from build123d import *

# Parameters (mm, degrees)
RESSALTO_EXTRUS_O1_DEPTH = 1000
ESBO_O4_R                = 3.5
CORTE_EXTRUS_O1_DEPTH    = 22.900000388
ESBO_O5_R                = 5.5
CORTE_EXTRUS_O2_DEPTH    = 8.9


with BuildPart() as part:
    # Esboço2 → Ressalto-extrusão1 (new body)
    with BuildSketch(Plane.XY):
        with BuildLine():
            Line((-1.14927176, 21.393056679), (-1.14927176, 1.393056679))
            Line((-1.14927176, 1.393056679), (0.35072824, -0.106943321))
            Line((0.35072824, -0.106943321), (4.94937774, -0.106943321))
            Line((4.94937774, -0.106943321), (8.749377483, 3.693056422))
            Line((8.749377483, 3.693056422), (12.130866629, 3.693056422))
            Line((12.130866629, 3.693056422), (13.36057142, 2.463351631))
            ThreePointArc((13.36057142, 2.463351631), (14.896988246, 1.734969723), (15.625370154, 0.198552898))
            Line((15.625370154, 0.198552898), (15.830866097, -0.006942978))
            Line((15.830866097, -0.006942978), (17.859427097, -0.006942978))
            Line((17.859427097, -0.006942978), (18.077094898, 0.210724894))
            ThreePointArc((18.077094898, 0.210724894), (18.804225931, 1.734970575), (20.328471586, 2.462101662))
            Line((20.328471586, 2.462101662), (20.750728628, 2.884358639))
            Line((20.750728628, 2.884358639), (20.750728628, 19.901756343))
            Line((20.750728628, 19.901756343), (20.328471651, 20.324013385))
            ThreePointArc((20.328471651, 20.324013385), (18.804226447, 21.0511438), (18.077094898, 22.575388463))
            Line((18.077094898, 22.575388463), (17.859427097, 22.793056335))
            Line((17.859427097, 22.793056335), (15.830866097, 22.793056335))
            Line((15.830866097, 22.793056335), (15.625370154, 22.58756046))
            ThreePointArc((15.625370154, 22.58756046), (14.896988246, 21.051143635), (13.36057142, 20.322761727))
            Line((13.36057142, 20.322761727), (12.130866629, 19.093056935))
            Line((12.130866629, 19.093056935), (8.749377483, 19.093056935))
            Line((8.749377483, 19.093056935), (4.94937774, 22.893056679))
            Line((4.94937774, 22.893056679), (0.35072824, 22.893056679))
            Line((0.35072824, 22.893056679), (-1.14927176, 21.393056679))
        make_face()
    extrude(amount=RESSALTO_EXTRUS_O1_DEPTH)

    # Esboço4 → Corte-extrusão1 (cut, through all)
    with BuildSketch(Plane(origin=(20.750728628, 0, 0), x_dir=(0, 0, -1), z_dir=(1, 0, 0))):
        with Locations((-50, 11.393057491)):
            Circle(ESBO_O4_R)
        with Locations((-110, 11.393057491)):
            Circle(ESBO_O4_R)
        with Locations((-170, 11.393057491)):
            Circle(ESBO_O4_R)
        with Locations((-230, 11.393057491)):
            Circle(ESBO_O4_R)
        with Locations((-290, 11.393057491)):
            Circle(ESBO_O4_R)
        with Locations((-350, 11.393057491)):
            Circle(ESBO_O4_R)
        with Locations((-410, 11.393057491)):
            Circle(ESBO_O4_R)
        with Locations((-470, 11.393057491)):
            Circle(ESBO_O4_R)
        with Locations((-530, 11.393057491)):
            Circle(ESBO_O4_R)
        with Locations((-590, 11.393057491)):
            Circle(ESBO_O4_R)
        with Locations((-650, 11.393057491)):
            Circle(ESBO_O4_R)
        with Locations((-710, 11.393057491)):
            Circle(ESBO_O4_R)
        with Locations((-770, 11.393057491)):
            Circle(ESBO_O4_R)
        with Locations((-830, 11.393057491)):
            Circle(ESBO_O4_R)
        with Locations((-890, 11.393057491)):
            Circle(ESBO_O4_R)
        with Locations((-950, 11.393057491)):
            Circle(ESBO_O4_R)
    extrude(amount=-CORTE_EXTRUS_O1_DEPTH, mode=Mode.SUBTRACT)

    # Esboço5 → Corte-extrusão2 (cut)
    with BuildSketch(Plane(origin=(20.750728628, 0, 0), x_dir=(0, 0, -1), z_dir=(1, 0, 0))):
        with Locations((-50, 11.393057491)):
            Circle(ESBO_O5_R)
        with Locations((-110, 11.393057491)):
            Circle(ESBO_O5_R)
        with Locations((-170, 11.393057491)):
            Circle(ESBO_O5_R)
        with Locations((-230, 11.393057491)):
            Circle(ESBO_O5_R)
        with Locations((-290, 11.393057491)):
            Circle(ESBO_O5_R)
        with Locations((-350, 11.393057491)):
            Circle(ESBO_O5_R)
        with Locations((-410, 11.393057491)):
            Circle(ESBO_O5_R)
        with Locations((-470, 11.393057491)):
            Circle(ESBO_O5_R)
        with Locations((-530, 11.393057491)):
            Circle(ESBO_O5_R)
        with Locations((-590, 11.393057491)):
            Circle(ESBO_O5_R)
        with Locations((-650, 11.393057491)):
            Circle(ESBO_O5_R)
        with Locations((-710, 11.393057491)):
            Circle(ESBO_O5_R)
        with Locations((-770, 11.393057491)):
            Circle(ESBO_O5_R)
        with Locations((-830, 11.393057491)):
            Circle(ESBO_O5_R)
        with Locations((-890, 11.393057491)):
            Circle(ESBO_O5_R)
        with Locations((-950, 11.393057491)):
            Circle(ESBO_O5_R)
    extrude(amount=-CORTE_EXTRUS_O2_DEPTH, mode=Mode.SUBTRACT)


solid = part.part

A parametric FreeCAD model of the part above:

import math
import FreeCAD as App
import Part
import Sketcher

V = App.Vector

doc = App.newDocument("Part")
params = doc.addObject("Spreadsheet::Sheet", "Params")
for row, (alias, value) in enumerate([
    ("sketch1_height", "20 mm"),
    ("sketch1_radius", "2.53 mm"),
    ("pad1_length", "1000 mm"),
    ("sketch2_diameter", "7 mm"),
    ("sketch3_diameter", "11 mm"),
    ("pocket2_length", "8.9 mm"),
], start=1):
    params.set(f"A{row}", alias)
    params.set(f"B{row}", "=" + value)
    params.setAlias(f"B{row}", alias)

body = doc.addObject("PartDesign::Body", "Body")

# Sketch on XY plane
sketch1 = doc.addObject("Sketcher::SketchObject", "Sketch")
body.addObject(sketch1)
sketch1.AttachmentSupport = (doc.XY_Plane, [""])
sketch1.MapMode = "FlatFace"
sketch1.addGeometry(Part.LineSegment(V(-1.15, 21.39, 0), V(-1.15, 1.39, 0)), False)
sketch1.addGeometry(Part.LineSegment(V(-1.15, 1.39, 0), V(0.35, -0.11, 0)), False)
sketch1.addGeometry(Part.LineSegment(V(0.35, -0.11, 0), V(4.95, -0.11, 0)), False)
sketch1.addGeometry(Part.LineSegment(V(4.95, -0.11, 0), V(8.75, 3.69, 0)), False)
sketch1.addGeometry(Part.LineSegment(V(8.75, 3.69, 0), V(12.13, 3.69, 0)), False)
sketch1.addGeometry(Part.LineSegment(V(12.13, 3.69, 0), V(13.36, 2.46, 0)), False)
sketch1.addGeometry(Part.ArcOfCircle(Part.Circle(V(13.11, -0.05, 0), V(0, 0, 1), 2.53), math.radians(6), math.radians(84)), False)
sketch1.addGeometry(Part.LineSegment(V(15.63, 0.2, 0), V(15.83, -0.01, 0)), False)
sketch1.addGeometry(Part.LineSegment(V(15.83, -0.01, 0), V(17.86, -0.01, 0)), False)
sketch1.addGeometry(Part.LineSegment(V(17.86, -0.01, 0), V(18.08, 0.21, 0)), False)
sketch1.addGeometry(Part.ArcOfCircle(Part.Circle(V(20.59, -0.05, 0), V(0, 0, 1), 2.53), math.radians(96), math.radians(174)), False)
sketch1.addGeometry(Part.LineSegment(V(20.33, 2.46, 0), V(20.75, 2.88, 0)), False)
sketch1.addGeometry(Part.LineSegment(V(20.75, 2.88, 0), V(20.75, 19.9, 0)), False)
sketch1.addGeometry(Part.LineSegment(V(20.75, 19.9, 0), V(20.33, 20.32, 0)), False)
sketch1.addGeometry(Part.ArcOfCircle(Part.Circle(V(20.59, 22.84, 0), V(0, 0, 1), 2.53), math.radians(-174), math.radians(-96)), False)
sketch1.addGeometry(Part.LineSegment(V(18.08, 22.58, 0), V(17.86, 22.79, 0)), False)
sketch1.addGeometry(Part.LineSegment(V(17.86, 22.79, 0), V(15.83, 22.79, 0)), False)
sketch1.addGeometry(Part.LineSegment(V(15.83, 22.79, 0), V(15.63, 22.59, 0)), False)
sketch1.addGeometry(Part.ArcOfCircle(Part.Circle(V(13.11, 22.84, 0), V(0, 0, 1), 2.53), math.radians(-84), math.radians(-6)), False)
sketch1.addGeometry(Part.LineSegment(V(13.36, 20.32, 0), V(12.13, 19.09, 0)), False)
sketch1.addGeometry(Part.LineSegment(V(12.13, 19.09, 0), V(8.75, 19.09, 0)), False)
sketch1.addGeometry(Part.LineSegment(V(8.75, 19.09, 0), V(4.95, 22.89, 0)), False)
sketch1.addGeometry(Part.LineSegment(V(4.95, 22.89, 0), V(0.35, 22.89, 0)), False)
sketch1.addGeometry(Part.LineSegment(V(0.35, 22.89, 0), V(-1.15, 21.39, 0)), False)
sketch1.addConstraint(Sketcher.Constraint("Coincident", 0, 2, 1, 1))
sketch1.addConstraint(Sketcher.Constraint("Coincident", 1, 2, 2, 1))
sketch1.addConstraint(Sketcher.Constraint("Coincident", 2, 2, 3, 1))
sketch1.addConstraint(Sketcher.Constraint("Coincident", 3, 2, 4, 1))
sketch1.addConstraint(Sketcher.Constraint("Coincident", 4, 2, 5, 1))
sketch1.addConstraint(Sketcher.Constraint("Coincident", 5, 2, 6, 2))
sketch1.addConstraint(Sketcher.Constraint("Coincident", 6, 1, 7, 1))
sketch1.addConstraint(Sketcher.Constraint("Coincident", 7, 2, 8, 1))
sketch1.addConstraint(Sketcher.Constraint("Coincident", 8, 2, 9, 1))
sketch1.addConstraint(Sketcher.Constraint("Coincident", 9, 2, 10, 2))
sketch1.addConstraint(Sketcher.Constraint("Coincident", 10, 1, 11, 1))
sketch1.addConstraint(Sketcher.Constraint("Coincident", 11, 2, 12, 1))
sketch1.addConstraint(Sketcher.Constraint("Coincident", 12, 2, 13, 1))
sketch1.addConstraint(Sketcher.Constraint("Coincident", 13, 2, 14, 2))
sketch1.addConstraint(Sketcher.Constraint("Coincident", 14, 1, 15, 1))
sketch1.addConstraint(Sketcher.Constraint("Coincident", 15, 2, 16, 1))
sketch1.addConstraint(Sketcher.Constraint("Coincident", 16, 2, 17, 1))
sketch1.addConstraint(Sketcher.Constraint("Coincident", 17, 2, 18, 2))
sketch1.addConstraint(Sketcher.Constraint("Coincident", 18, 1, 19, 1))
sketch1.addConstraint(Sketcher.Constraint("Coincident", 19, 2, 20, 1))
sketch1.addConstraint(Sketcher.Constraint("Coincident", 20, 2, 21, 1))
sketch1.addConstraint(Sketcher.Constraint("Coincident", 21, 2, 22, 1))
sketch1.addConstraint(Sketcher.Constraint("Coincident", 22, 2, 23, 1))
sketch1.addConstraint(Sketcher.Constraint("Coincident", 23, 2, 0, 1))
sketch1.addConstraint(Sketcher.Constraint("Vertical", 0))
sketch1.addConstraint(Sketcher.Constraint("Horizontal", 2))
sketch1.addConstraint(Sketcher.Constraint("Horizontal", 4))
sketch1.addConstraint(Sketcher.Constraint("Horizontal", 8))
sketch1.addConstraint(Sketcher.Constraint("Vertical", 12))
sketch1.addConstraint(Sketcher.Constraint("Horizontal", 16))
sketch1.addConstraint(Sketcher.Constraint("Horizontal", 20))
sketch1.addConstraint(Sketcher.Constraint("Horizontal", 22))
sketch1.addConstraint(Sketcher.Constraint("Equal", 6, 10))
sketch1.addConstraint(Sketcher.Constraint("Equal", 10, 14))
sketch1.addConstraint(Sketcher.Constraint("Equal", 14, 18))
sketch1.addConstraint(Sketcher.Constraint("Perpendicular", 1, 3))
sketch1.addConstraint(Sketcher.Constraint("Perpendicular", 3, 5))
sketch1.addConstraint(Sketcher.Constraint("Parallel", 5, 7))
sketch1.addConstraint(Sketcher.Constraint("Perpendicular", 7, 9))
sketch1.addConstraint(Sketcher.Constraint("Parallel", 9, 11))
sketch1.addConstraint(Sketcher.Constraint("Perpendicular", 11, 13))
sketch1.addConstraint(Sketcher.Constraint("Parallel", 13, 15))
sketch1.addConstraint(Sketcher.Constraint("Perpendicular", 15, 17))
sketch1.addConstraint(Sketcher.Constraint("Parallel", 17, 19))
sketch1.addConstraint(Sketcher.Constraint("Perpendicular", 19, 21))
sketch1.addConstraint(Sketcher.Constraint("Perpendicular", 21, 23))
sketch1.addConstraint(Sketcher.Constraint("Horizontal", 6, 3, 10, 3))
sketch1.addConstraint(Sketcher.Constraint("Horizontal", 14, 3, 18, 3))
sketch1.addConstraint(Sketcher.Constraint("Vertical", 10, 3, 14, 3))
sketch1.addConstraint(Sketcher.Constraint("Vertical", 6, 3, 18, 3))
sketch1.addConstraint(Sketcher.Constraint("Vertical", 10, 1, 13, 2))
sketch1.addConstraint(Sketcher.Constraint("Vertical", 9, 2, 14, 1))
sketch1.addConstraint(Sketcher.Constraint("Vertical", 8, 2, 15, 2))
sketch1.addConstraint(Sketcher.Constraint("Vertical", 7, 2, 16, 2))
sketch1.addConstraint(Sketcher.Constraint("Vertical", 6, 1, 17, 2))
sketch1.addConstraint(Sketcher.Constraint("Vertical", 5, 2, 18, 1))
sketch1.addConstraint(Sketcher.Constraint("Vertical", 4, 2, 19, 2))
sketch1.addConstraint(Sketcher.Constraint("Vertical", 3, 2, 20, 2))
sketch1.addConstraint(Sketcher.Constraint("Vertical", 2, 2, 21, 2))
sketch1.addConstraint(Sketcher.Constraint("Vertical", 1, 2, 22, 2))
sketch1.addConstraint(Sketcher.Constraint("DistanceY", 0, 2, 0, 1, 20.0))
sketch1.addConstraint(Sketcher.Constraint("Radius", 6, 2.53))
sketch1.addConstraint(Sketcher.Constraint("DistanceX", 0, 2, 1, 2, 1.5))
sketch1.addConstraint(Sketcher.Constraint("DistanceX", 2, 2, 3, 2, 3.8))
sketch1.addConstraint(Sketcher.Constraint("DistanceX", 4, 2, 7, 2, 3.699999))
sketch1.addConstraint(Sketcher.Constraint("DistanceY", 7, 2, 4, 2, 3.699999))
sketch1.addConstraint(Sketcher.Constraint("DistanceX", 2, 1, 2, 2, 4.59865))
sketch1.addConstraint(Sketcher.Constraint("DistanceX", 4, 1, 4, 2, 3.381489))
sketch1.addConstraint(Sketcher.Constraint("DistanceX", 8, 1, 8, 2, 2.028561))
sketch1.addConstraint(Sketcher.Constraint("DistanceY", -1, 1, 10, 1, 2.462102))
sketch1.addConstraint(Sketcher.Constraint("DistanceX", 6, 3, 10, 3, 7.485198))
sketch1.addConstraint(Sketcher.Constraint("DistanceX", 5, 2, 6, 1, 2.264799))
sketch1.addConstraint(Sketcher.Constraint("DistanceX", 6, 1, 10, 1, 4.703101))
sketch1.addConstraint(Sketcher.Constraint("DistanceX", 8, 2, 11, 2, 2.891302))
sketch1.addConstraint(Sketcher.Constraint("DistanceY", 8, 2, 11, 2, 2.891302))
sketch1.addConstraint(Sketcher.Constraint("DistanceX", -1, 1, 6, 3, 13.108008))
sketch1.setExpression("Constraints[60]", "Params.sketch1_height")
sketch1.setExpression("Constraints[61]", "Params.sketch1_radius")
pad1 = doc.addObject("PartDesign::Pad", "Pad")
body.addObject(pad1)
pad1.Profile = sketch1
pad1.setExpression("Length", "Params.pad1_length")

# Sketch on YZ plane
sketch2 = doc.addObject("Sketcher::SketchObject", "Sketch001")
body.addObject(sketch2)
sketch2.AttachmentSupport = (doc.YZ_Plane, [""])
sketch2.MapMode = "FlatFace"
sketch2.AttachmentOffset = App.Placement(V(0, 0, 20.750729), App.Rotation())
sketch2.addGeometry(Part.Circle(V(11.4, 50, 0), V(0, 0, 1), 3.5), False)
sketch2.addGeometry(Part.Circle(V(11.4, 110, 0), V(0, 0, 1), 3.5), False)
sketch2.addGeometry(Part.Circle(V(11.4, 170, 0), V(0, 0, 1), 3.5), False)
sketch2.addGeometry(Part.Circle(V(11.4, 230, 0), V(0, 0, 1), 3.5), False)
sketch2.addGeometry(Part.Circle(V(11.4, 290, 0), V(0, 0, 1), 3.5), False)
sketch2.addGeometry(Part.Circle(V(11.4, 350, 0), V(0, 0, 1), 3.5), False)
sketch2.addGeometry(Part.Circle(V(11.4, 410, 0), V(0, 0, 1), 3.5), False)
sketch2.addGeometry(Part.Circle(V(11.4, 470, 0), V(0, 0, 1), 3.5), False)
sketch2.addGeometry(Part.Circle(V(11.4, 530, 0), V(0, 0, 1), 3.5), False)
sketch2.addGeometry(Part.Circle(V(11.4, 590, 0), V(0, 0, 1), 3.5), False)
sketch2.addGeometry(Part.Circle(V(11.4, 650, 0), V(0, 0, 1), 3.5), False)
sketch2.addGeometry(Part.Circle(V(11.4, 710, 0), V(0, 0, 1), 3.5), False)
sketch2.addGeometry(Part.Circle(V(11.4, 770, 0), V(0, 0, 1), 3.5), False)
sketch2.addGeometry(Part.Circle(V(11.4, 830, 0), V(0, 0, 1), 3.5), False)
sketch2.addGeometry(Part.Circle(V(11.4, 890, 0), V(0, 0, 1), 3.5), False)
sketch2.addGeometry(Part.Circle(V(11.4, 950, 0), V(0, 0, 1), 3.5), False)
sketch2.addConstraint(Sketcher.Constraint("Equal", 0, 1))
sketch2.addConstraint(Sketcher.Constraint("Equal", 1, 2))
sketch2.addConstraint(Sketcher.Constraint("Equal", 2, 3))
sketch2.addConstraint(Sketcher.Constraint("Equal", 3, 4))
sketch2.addConstraint(Sketcher.Constraint("Equal", 4, 5))
sketch2.addConstraint(Sketcher.Constraint("Equal", 5, 6))
sketch2.addConstraint(Sketcher.Constraint("Equal", 6, 7))
sketch2.addConstraint(Sketcher.Constraint("Equal", 7, 8))
sketch2.addConstraint(Sketcher.Constraint("Equal", 8, 9))
sketch2.addConstraint(Sketcher.Constraint("Equal", 9, 10))
sketch2.addConstraint(Sketcher.Constraint("Equal", 10, 11))
sketch2.addConstraint(Sketcher.Constraint("Equal", 11, 12))
sketch2.addConstraint(Sketcher.Constraint("Equal", 12, 13))
sketch2.addConstraint(Sketcher.Constraint("Equal", 13, 14))
sketch2.addConstraint(Sketcher.Constraint("Equal", 14, 15))
sketch2.addConstraint(Sketcher.Constraint("Vertical", 0, 3, 1, 3))
sketch2.addConstraint(Sketcher.Constraint("Vertical", 1, 3, 2, 3))
sketch2.addConstraint(Sketcher.Constraint("Vertical", 2, 3, 3, 3))
sketch2.addConstraint(Sketcher.Constraint("Vertical", 3, 3, 4, 3))
sketch2.addConstraint(Sketcher.Constraint("Vertical", 4, 3, 5, 3))
sketch2.addConstraint(Sketcher.Constraint("Vertical", 5, 3, 6, 3))
sketch2.addConstraint(Sketcher.Constraint("Vertical", 6, 3, 7, 3))
sketch2.addConstraint(Sketcher.Constraint("Vertical", 7, 3, 8, 3))
sketch2.addConstraint(Sketcher.Constraint("Vertical", 8, 3, 9, 3))
sketch2.addConstraint(Sketcher.Constraint("Vertical", 9, 3, 10, 3))
sketch2.addConstraint(Sketcher.Constraint("Vertical", 10, 3, 11, 3))
sketch2.addConstraint(Sketcher.Constraint("Vertical", 11, 3, 12, 3))
sketch2.addConstraint(Sketcher.Constraint("Vertical", 12, 3, 13, 3))
sketch2.addConstraint(Sketcher.Constraint("Vertical", 13, 3, 14, 3))
sketch2.addConstraint(Sketcher.Constraint("Vertical", 14, 3, 15, 3))
sketch2.addConstraint(Sketcher.Constraint("Diameter", 0, 7.0))
sketch2.addConstraint(Sketcher.Constraint("DistanceY", -1, 1, 0, 3, 50.0))
sketch2.addConstraint(Sketcher.Constraint("DistanceY", -1, 1, 1, 3, 110.0))
sketch2.addConstraint(Sketcher.Constraint("DistanceY", -1, 1, 2, 3, 170.0))
sketch2.addConstraint(Sketcher.Constraint("DistanceY", -1, 1, 3, 3, 230.0))
sketch2.addConstraint(Sketcher.Constraint("DistanceY", -1, 1, 4, 3, 290.0))
sketch2.addConstraint(Sketcher.Constraint("DistanceY", -1, 1, 5, 3, 350.0))
sketch2.addConstraint(Sketcher.Constraint("DistanceY", -1, 1, 6, 3, 410.0))
sketch2.addConstraint(Sketcher.Constraint("DistanceY", -1, 1, 7, 3, 470.0))
sketch2.addConstraint(Sketcher.Constraint("DistanceY", -1, 1, 8, 3, 530.0))
sketch2.addConstraint(Sketcher.Constraint("DistanceY", -1, 1, 9, 3, 590.0))
sketch2.addConstraint(Sketcher.Constraint("DistanceY", -1, 1, 10, 3, 650.0))
sketch2.addConstraint(Sketcher.Constraint("DistanceY", -1, 1, 11, 3, 710.0))
sketch2.addConstraint(Sketcher.Constraint("DistanceY", -1, 1, 12, 3, 770.0))
sketch2.addConstraint(Sketcher.Constraint("DistanceY", -1, 1, 13, 3, 830.0))
sketch2.addConstraint(Sketcher.Constraint("DistanceY", -1, 1, 14, 3, 890.0))
sketch2.addConstraint(Sketcher.Constraint("DistanceY", -1, 1, 15, 3, 950.0))
sketch2.addConstraint(Sketcher.Constraint("DistanceX", -1, 1, 0, 3, 11.393057))
sketch2.setExpression("Constraints[30]", "Params.sketch2_diameter")
pocket1 = doc.addObject("PartDesign::Pocket", "Pocket")
body.addObject(pocket1)
pocket1.Profile = sketch2
pocket1.Type = "ThroughAll"

# Sketch on YZ plane
sketch3 = doc.addObject("Sketcher::SketchObject", "Sketch002")
body.addObject(sketch3)
sketch3.AttachmentSupport = (doc.YZ_Plane, [""])
sketch3.MapMode = "FlatFace"
sketch3.AttachmentOffset = App.Placement(V(0, 0, 20.750729), App.Rotation())
sketch3.addGeometry(Part.Circle(V(11, 50, 0), V(0, 0, 1), 6), False)
sketch3.addGeometry(Part.Circle(V(11, 110, 0), V(0, 0, 1), 6), False)
sketch3.addGeometry(Part.Circle(V(11, 170, 0), V(0, 0, 1), 6), False)
sketch3.addGeometry(Part.Circle(V(11, 230, 0), V(0, 0, 1), 6), False)
sketch3.addGeometry(Part.Circle(V(11, 290, 0), V(0, 0, 1), 6), False)
sketch3.addGeometry(Part.Circle(V(11, 350, 0), V(0, 0, 1), 6), False)
sketch3.addGeometry(Part.Circle(V(11, 410, 0), V(0, 0, 1), 6), False)
sketch3.addGeometry(Part.Circle(V(11, 470, 0), V(0, 0, 1), 6), False)
sketch3.addGeometry(Part.Circle(V(11, 530, 0), V(0, 0, 1), 6), False)
sketch3.addGeometry(Part.Circle(V(11, 590, 0), V(0, 0, 1), 6), False)
sketch3.addGeometry(Part.Circle(V(11, 650, 0), V(0, 0, 1), 6), False)
sketch3.addGeometry(Part.Circle(V(11, 710, 0), V(0, 0, 1), 6), False)
sketch3.addGeometry(Part.Circle(V(11, 770, 0), V(0, 0, 1), 6), False)
sketch3.addGeometry(Part.Circle(V(11, 830, 0), V(0, 0, 1), 6), False)
sketch3.addGeometry(Part.Circle(V(11, 890, 0), V(0, 0, 1), 6), False)
sketch3.addGeometry(Part.Circle(V(11, 950, 0), V(0, 0, 1), 6), False)
sketch3.addConstraint(Sketcher.Constraint("Equal", 0, 1))
sketch3.addConstraint(Sketcher.Constraint("Equal", 1, 2))
sketch3.addConstraint(Sketcher.Constraint("Equal", 2, 3))
sketch3.addConstraint(Sketcher.Constraint("Equal", 3, 4))
sketch3.addConstraint(Sketcher.Constraint("Equal", 4, 5))
sketch3.addConstraint(Sketcher.Constraint("Equal", 5, 6))
sketch3.addConstraint(Sketcher.Constraint("Equal", 6, 7))
sketch3.addConstraint(Sketcher.Constraint("Equal", 7, 8))
sketch3.addConstraint(Sketcher.Constraint("Equal", 8, 9))
sketch3.addConstraint(Sketcher.Constraint("Equal", 9, 10))
sketch3.addConstraint(Sketcher.Constraint("Equal", 10, 11))
sketch3.addConstraint(Sketcher.Constraint("Equal", 11, 12))
sketch3.addConstraint(Sketcher.Constraint("Equal", 12, 13))
sketch3.addConstraint(Sketcher.Constraint("Equal", 13, 14))
sketch3.addConstraint(Sketcher.Constraint("Equal", 14, 15))
sketch3.addConstraint(Sketcher.Constraint("Vertical", 0, 3, 1, 3))
sketch3.addConstraint(Sketcher.Constraint("Vertical", 1, 3, 2, 3))
sketch3.addConstraint(Sketcher.Constraint("Vertical", 2, 3, 3, 3))
sketch3.addConstraint(Sketcher.Constraint("Vertical", 3, 3, 4, 3))
sketch3.addConstraint(Sketcher.Constraint("Vertical", 4, 3, 5, 3))
sketch3.addConstraint(Sketcher.Constraint("Vertical", 5, 3, 6, 3))
sketch3.addConstraint(Sketcher.Constraint("Vertical", 6, 3, 7, 3))
sketch3.addConstraint(Sketcher.Constraint("Vertical", 7, 3, 8, 3))
sketch3.addConstraint(Sketcher.Constraint("Vertical", 8, 3, 9, 3))
sketch3.addConstraint(Sketcher.Constraint("Vertical", 9, 3, 10, 3))
sketch3.addConstraint(Sketcher.Constraint("Vertical", 10, 3, 11, 3))
sketch3.addConstraint(Sketcher.Constraint("Vertical", 11, 3, 12, 3))
sketch3.addConstraint(Sketcher.Constraint("Vertical", 12, 3, 13, 3))
sketch3.addConstraint(Sketcher.Constraint("Vertical", 13, 3, 14, 3))
sketch3.addConstraint(Sketcher.Constraint("Vertical", 14, 3, 15, 3))
sketch3.addConstraint(Sketcher.Constraint("Diameter", 0, 11.0))
sketch3.addConstraint(Sketcher.Constraint("DistanceY", -1, 1, 0, 3, 50.0))
sketch3.addConstraint(Sketcher.Constraint("DistanceY", -1, 1, 1, 3, 110.0))
sketch3.addConstraint(Sketcher.Constraint("DistanceY", -1, 1, 2, 3, 170.0))
sketch3.addConstraint(Sketcher.Constraint("DistanceY", -1, 1, 3, 3, 230.0))
sketch3.addConstraint(Sketcher.Constraint("DistanceY", -1, 1, 4, 3, 290.0))
sketch3.addConstraint(Sketcher.Constraint("DistanceY", -1, 1, 5, 3, 350.0))
sketch3.addConstraint(Sketcher.Constraint("DistanceY", -1, 1, 6, 3, 410.0))
sketch3.addConstraint(Sketcher.Constraint("DistanceY", -1, 1, 7, 3, 470.0))
sketch3.addConstraint(Sketcher.Constraint("DistanceY", -1, 1, 8, 3, 530.0))
sketch3.addConstraint(Sketcher.Constraint("DistanceY", -1, 1, 9, 3, 590.0))
sketch3.addConstraint(Sketcher.Constraint("DistanceY", -1, 1, 10, 3, 650.0))
sketch3.addConstraint(Sketcher.Constraint("DistanceY", -1, 1, 11, 3, 710.0))
sketch3.addConstraint(Sketcher.Constraint("DistanceY", -1, 1, 12, 3, 770.0))
sketch3.addConstraint(Sketcher.Constraint("DistanceY", -1, 1, 13, 3, 830.0))
sketch3.addConstraint(Sketcher.Constraint("DistanceY", -1, 1, 14, 3, 890.0))
sketch3.addConstraint(Sketcher.Constraint("DistanceY", -1, 1, 15, 3, 950.0))
sketch3.addConstraint(Sketcher.Constraint("DistanceX", -1, 1, 0, 3, 11.393057))
sketch3.setExpression("Constraints[30]", "Params.sketch3_diameter")
pocket2 = doc.addObject("PartDesign::Pocket", "Pocket001")
body.addObject(pocket2)
pocket2.Profile = sketch3
pocket2.setExpression("Length", "Params.pocket2_length")

doc.recompute()
